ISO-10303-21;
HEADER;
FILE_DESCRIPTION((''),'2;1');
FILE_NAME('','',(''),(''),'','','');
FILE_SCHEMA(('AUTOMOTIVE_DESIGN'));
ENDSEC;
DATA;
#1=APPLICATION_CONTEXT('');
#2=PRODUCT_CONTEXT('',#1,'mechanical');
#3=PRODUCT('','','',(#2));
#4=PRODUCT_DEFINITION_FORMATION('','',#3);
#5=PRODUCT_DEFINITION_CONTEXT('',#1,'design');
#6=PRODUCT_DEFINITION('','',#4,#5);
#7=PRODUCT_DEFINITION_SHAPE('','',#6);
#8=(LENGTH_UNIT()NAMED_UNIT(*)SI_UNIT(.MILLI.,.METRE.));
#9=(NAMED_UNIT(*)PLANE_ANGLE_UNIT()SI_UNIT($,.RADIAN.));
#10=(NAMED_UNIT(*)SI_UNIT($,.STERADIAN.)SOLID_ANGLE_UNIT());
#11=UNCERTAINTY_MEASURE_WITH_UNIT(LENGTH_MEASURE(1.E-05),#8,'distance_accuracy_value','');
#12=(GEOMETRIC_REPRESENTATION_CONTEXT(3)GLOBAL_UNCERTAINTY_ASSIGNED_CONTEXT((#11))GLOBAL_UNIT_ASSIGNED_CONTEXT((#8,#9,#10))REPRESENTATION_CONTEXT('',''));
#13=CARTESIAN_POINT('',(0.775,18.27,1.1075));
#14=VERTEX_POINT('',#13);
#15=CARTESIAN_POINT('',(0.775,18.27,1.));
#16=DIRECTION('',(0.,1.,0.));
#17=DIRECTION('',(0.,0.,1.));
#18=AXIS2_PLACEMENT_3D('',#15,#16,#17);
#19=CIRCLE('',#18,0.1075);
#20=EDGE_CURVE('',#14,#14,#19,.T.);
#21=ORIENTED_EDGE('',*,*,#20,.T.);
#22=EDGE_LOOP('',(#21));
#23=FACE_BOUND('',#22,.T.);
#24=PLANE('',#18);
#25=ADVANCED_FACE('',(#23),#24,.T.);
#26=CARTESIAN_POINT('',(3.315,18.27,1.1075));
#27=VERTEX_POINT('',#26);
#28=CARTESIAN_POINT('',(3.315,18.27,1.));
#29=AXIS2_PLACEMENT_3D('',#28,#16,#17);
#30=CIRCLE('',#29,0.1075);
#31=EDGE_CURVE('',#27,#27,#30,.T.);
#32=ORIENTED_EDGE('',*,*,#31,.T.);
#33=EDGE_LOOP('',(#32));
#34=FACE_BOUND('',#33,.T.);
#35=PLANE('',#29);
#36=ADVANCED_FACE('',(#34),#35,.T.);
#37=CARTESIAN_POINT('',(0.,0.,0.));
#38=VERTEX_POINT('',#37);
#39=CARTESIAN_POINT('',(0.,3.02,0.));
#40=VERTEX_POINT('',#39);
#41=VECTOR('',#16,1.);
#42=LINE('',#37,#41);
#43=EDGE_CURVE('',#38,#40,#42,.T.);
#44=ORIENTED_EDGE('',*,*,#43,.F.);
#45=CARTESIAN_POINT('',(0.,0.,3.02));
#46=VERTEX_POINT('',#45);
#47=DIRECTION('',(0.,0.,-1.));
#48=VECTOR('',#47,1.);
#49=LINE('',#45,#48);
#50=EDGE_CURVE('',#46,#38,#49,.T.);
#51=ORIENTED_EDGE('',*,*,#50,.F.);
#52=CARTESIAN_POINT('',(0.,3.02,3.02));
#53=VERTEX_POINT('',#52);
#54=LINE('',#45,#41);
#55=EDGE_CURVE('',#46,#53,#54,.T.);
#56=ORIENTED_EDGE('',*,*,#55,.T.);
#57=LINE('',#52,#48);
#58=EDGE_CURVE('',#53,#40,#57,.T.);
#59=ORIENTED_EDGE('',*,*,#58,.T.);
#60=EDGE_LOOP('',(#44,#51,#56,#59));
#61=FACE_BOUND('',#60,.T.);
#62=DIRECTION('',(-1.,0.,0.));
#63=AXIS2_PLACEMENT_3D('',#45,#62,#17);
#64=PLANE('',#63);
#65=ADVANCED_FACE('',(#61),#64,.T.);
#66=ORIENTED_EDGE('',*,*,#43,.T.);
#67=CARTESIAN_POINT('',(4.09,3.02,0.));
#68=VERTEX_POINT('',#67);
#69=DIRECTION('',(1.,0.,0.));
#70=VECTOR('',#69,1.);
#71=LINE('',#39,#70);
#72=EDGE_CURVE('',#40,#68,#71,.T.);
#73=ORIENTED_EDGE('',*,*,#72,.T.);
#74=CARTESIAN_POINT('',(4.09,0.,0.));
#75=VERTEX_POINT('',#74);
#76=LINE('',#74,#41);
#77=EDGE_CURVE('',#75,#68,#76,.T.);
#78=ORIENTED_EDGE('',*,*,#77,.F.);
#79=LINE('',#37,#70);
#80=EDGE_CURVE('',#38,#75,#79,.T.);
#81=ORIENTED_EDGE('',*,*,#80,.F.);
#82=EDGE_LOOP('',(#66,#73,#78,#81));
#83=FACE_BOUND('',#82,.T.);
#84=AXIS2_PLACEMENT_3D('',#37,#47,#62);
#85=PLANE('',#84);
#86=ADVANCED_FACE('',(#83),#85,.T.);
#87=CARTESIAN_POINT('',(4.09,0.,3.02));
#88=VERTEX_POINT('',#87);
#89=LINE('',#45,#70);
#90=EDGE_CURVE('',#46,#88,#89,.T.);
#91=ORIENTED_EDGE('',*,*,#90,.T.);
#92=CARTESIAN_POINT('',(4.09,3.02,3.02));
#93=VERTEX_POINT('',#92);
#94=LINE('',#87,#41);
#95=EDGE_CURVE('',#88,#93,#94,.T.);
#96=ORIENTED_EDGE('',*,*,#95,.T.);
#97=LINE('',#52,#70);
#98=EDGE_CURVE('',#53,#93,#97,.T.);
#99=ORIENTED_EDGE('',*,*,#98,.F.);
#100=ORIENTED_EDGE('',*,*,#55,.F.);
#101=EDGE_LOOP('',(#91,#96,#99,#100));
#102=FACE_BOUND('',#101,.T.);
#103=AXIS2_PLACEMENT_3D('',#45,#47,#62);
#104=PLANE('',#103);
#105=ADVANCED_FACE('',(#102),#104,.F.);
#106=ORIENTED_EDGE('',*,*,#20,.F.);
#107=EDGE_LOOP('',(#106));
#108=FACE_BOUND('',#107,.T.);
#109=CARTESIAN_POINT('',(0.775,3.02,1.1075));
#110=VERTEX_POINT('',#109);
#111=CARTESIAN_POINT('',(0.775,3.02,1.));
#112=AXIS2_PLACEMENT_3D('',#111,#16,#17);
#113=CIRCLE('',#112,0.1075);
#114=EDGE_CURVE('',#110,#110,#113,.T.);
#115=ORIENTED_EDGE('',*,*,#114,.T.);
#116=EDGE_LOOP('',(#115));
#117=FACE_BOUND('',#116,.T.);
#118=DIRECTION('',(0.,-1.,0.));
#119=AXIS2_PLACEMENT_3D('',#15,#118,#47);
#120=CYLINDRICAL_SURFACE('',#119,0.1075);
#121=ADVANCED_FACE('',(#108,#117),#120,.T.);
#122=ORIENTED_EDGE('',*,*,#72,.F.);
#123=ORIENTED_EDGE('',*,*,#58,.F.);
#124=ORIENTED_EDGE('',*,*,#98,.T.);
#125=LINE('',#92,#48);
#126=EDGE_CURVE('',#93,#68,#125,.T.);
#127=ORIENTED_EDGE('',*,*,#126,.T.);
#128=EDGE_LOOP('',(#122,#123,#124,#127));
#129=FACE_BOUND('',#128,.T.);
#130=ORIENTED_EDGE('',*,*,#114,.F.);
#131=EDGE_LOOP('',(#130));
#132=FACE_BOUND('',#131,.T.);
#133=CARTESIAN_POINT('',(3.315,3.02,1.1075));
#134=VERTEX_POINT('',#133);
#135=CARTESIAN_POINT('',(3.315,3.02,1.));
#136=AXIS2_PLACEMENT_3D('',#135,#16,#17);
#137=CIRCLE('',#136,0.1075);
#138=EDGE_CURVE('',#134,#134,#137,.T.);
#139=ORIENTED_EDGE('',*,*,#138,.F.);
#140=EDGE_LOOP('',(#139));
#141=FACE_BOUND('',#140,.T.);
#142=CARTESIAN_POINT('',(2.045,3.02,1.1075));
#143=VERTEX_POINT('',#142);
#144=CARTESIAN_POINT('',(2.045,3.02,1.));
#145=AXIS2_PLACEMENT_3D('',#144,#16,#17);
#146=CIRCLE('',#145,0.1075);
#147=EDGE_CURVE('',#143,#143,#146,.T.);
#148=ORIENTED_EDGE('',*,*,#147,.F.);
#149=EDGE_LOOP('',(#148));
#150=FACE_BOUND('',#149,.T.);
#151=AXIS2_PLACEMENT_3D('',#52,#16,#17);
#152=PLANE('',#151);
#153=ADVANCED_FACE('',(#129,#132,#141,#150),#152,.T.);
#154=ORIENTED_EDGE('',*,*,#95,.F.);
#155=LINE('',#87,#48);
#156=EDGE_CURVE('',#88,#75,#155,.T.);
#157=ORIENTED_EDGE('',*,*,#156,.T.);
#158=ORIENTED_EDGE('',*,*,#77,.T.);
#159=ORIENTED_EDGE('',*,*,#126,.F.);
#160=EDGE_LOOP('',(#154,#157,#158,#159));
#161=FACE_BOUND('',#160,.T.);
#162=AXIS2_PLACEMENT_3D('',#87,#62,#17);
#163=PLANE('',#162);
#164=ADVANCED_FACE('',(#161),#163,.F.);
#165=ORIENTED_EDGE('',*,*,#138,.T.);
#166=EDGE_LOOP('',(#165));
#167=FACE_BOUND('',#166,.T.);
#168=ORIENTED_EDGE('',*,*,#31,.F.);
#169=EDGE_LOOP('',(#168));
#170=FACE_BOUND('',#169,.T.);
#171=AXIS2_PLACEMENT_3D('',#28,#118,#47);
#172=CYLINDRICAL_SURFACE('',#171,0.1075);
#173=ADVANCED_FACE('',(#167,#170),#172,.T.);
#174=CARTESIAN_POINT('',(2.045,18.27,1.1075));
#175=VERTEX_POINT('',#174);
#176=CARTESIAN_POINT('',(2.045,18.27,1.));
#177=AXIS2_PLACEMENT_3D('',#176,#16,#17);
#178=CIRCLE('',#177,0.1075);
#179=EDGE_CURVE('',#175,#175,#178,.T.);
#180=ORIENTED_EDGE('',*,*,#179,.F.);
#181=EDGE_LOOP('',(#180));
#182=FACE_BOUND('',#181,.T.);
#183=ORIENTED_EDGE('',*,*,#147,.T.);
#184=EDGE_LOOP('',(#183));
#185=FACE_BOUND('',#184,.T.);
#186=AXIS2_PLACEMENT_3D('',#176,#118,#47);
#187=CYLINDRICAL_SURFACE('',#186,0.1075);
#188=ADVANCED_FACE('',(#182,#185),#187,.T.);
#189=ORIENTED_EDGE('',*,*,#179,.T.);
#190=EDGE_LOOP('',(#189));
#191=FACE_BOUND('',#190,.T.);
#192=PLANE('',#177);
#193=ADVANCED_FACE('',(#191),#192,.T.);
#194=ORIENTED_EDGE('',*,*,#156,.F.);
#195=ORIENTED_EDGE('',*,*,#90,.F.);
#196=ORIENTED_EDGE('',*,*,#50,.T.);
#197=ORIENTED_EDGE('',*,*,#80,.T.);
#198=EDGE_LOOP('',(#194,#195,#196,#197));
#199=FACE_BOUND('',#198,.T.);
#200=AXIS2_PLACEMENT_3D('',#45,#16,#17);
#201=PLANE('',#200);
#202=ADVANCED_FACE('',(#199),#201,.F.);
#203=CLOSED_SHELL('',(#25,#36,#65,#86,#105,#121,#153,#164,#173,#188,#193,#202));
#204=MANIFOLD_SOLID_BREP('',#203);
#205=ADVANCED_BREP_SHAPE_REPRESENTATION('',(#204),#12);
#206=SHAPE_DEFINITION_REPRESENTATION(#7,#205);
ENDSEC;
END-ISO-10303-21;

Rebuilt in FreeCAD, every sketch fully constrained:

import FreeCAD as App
import Part
import Sketcher
from FreeCAD import Vector

doc = App.newDocument("Part")
body = doc.addObject("PartDesign::Body", "Body")

sketch1 = doc.addObject("Sketcher::SketchObject", "Sketch")
body.addObject(sketch1)
sketch1.AttachmentSupport = (doc.XY_Plane, [""])
sketch1.MapMode = "FlatFace"
sketch1.addGeometry([
    Part.LineSegment(Vector(0, 3, 0), Vector(0, 0, 0)),
    Part.LineSegment(Vector(0, 0, 0), Vector(4.1, 0, 0)),
    Part.LineSegment(Vector(4.1, 0, 0), Vector(4.1, 3, 0)),
    Part.LineSegment(Vector(4.1, 3, 0), Vector(0, 3, 0)),
], False)
sketch1.addConstraint([
    Sketcher.Constraint("Coincident", 0, 2, 1, 1),
    Sketcher.Constraint("Coincident", 1, 2, 2, 1),
    Sketcher.Constraint("Coincident", 2, 2, 3, 1),
    Sketcher.Constraint("Coincident", 3, 2, 0, 1),
    Sketcher.Constraint("Vertical", 0),
    Sketcher.Constraint("Horizontal", 1),
    Sketcher.Constraint("Vertical", 2),
    Sketcher.Constraint("Horizontal", 3),
    Sketcher.Constraint("Coincident", 0, 2, -1, 1),
    Sketcher.Constraint("DistanceX", 1, 1, 1, 2, 4.09),
    Sketcher.Constraint("DistanceY", 0, 2, 0, 1, 3.02),
])
pad1 = doc.addObject("PartDesign::Pad", "Pad")
body.addObject(pad1)
pad1.Profile = sketch1
pad1.Length = 3.02

sketch2 = doc.addObject("Sketcher::SketchObject", "Sketch001")
body.addObject(sketch2)
sketch2.AttachmentSupport = (doc.XZ_Plane, [""])
sketch2.MapMode = "FlatFace"
sketch2.AttachmentOffset = App.Placement(Vector(0, 0, -3.02), App.Rotation())
sketch2.addGeometry([
    Part.Circle(Vector(0.78, 1, 0), Vector(0, 0, 1), 0.11),
    Part.Circle(Vector(2.04, 1, 0), Vector(0, 0, 1), 0.11),
    Part.Circle(Vector(3.31, 1, 0), Vector(0, 0, 1), 0.11),
], False)
sketch2.addConstraint([
    Sketcher.Constraint("Equal", 0, 1),
    Sketcher.Constraint("Equal", 1, 2),
    Sketcher.Constraint("Horizontal", 0, 3, 1, 3),
    Sketcher.Constraint("Horizontal", 1, 3, 2, 3),
    Sketcher.Constraint("Diameter", 0, 0.215),
    Sketcher.Constraint("DistanceY", -1, 1, 0, 3, 1.0),
    Sketcher.Constraint("DistanceX", 0, 3, 1, 3, 1.27),
    Sketcher.Constraint("DistanceX", 1, 3, 2, 3, 1.27),
    Sketcher.Constraint("DistanceX", -1, 1, 0, 3, 0.775),
])
pad2 = doc.addObject("PartDesign::Pad", "Pad001")
body.addObject(pad2)
pad2.Profile = sketch2
pad2.Length = 15.25
pad2.Reversed = True

doc.recompute()
